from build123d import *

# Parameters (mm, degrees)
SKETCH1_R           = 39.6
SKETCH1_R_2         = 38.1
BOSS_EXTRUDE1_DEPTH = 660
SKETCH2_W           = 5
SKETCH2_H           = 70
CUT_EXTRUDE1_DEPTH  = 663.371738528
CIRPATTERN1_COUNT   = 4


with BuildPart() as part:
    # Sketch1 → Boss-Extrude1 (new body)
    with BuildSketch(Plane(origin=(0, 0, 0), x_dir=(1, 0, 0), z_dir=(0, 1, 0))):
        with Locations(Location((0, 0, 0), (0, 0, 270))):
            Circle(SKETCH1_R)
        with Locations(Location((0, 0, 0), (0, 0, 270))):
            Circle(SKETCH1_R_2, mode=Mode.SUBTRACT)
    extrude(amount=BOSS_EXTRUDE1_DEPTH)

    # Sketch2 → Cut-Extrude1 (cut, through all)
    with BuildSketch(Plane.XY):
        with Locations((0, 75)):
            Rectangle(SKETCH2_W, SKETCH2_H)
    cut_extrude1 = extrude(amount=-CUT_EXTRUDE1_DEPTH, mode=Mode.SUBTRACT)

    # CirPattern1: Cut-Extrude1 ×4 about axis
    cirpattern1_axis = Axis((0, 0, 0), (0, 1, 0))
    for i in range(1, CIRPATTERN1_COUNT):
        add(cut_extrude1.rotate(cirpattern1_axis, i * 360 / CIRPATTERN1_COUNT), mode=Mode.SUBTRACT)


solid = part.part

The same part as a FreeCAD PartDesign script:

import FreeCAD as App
import Part
import Sketcher
from FreeCAD import Vector


def add_polygon(sketch, points):
    """Adds a closed chain of lines whose ends are joined by coincident constraints."""
    first, n = sketch.GeometryCount, len(points)
    for a, b in zip(points, points[1:] + points[:1]):
        sketch.addGeometry(Part.LineSegment(App.Vector(*a, 0), App.Vector(*b, 0)), False)
    for i in range(n):
        sketch.addConstraint(Sketcher.Constraint("Coincident", first + i, 2, first + (i + 1) % n, 1))

doc = App.newDocument("Part")
body = doc.addObject("PartDesign::Body", "Body")

# Sketch on XZ plane
sketch1 = body.newObject("Sketcher::SketchObject", "Sketch")
sketch1.AttachmentSupport = (doc.getObject("XZ_Plane"), [""])
sketch1.MapMode = "FlatFace"
sketch1.addGeometry([
    Part.Circle(Vector(0, 0, 0), Vector(0, 0, 1), 39.6),
    Part.Circle(Vector(0, 0, 0), Vector(0, 0, 1), 38.1),
], False)
sketch1.addConstraint([
    Sketcher.Constraint("Coincident", 0, 3, -1, 1),
    Sketcher.Constraint("Coincident", 1, 3, -1, 1),
    Sketcher.Constraint("Diameter", 0, 79.2),
    Sketcher.Constraint("Diameter", 1, 76.2),
])
pad1 = body.newObject("PartDesign::Pad", "Pad")
pad1.Profile = sketch1
pad1.Length = 660
pad1.Reversed = True

# Sketch on XY plane
sketch2 = body.newObject("Sketcher::SketchObject", "Sketch001")
sketch2.AttachmentSupport = (doc.getObject("XY_Plane"), [""])
sketch2.MapMode = "FlatFace"
add_polygon(sketch2, [(-2.5, 110), (-2.5, 40), (2.5, 40), (2.5, 110)])  # lines 0-3
sketch2.addConstraint([
    Sketcher.Constraint("Vertical", 0),
    Sketcher.Constraint("Horizontal", 1),
    Sketcher.Constraint("Vertical", 2),
    Sketcher.Constraint("Horizontal", 3),
    Sketcher.Constraint("DistanceX", 1, 1, 1, 2, 5.0),
    Sketcher.Constraint("DistanceY", 0, 2, 0, 1, 70.0),
    Sketcher.Constraint("DistanceY", -1, 1, 0, 2, 40.0),
    Sketcher.Constraint("DistanceX", 0, 2, -1, 1, 2.5),
])
pocket1 = body.newObject("PartDesign::Pocket", "Pocket")
pocket1.Profile = sketch2
pocket1.Type = "ThroughAll"
doc.recompute()

polarpattern = body.newObject("PartDesign::PolarPattern", "PolarPattern")
polarpattern.Originals = [pocket1]
polarpattern.Axis = (doc.getObject("Y_Axis"), [""])
polarpattern.Angle = 360
polarpattern.Occurrences = 4
body.Tip = polarpattern

doc.recompute()
